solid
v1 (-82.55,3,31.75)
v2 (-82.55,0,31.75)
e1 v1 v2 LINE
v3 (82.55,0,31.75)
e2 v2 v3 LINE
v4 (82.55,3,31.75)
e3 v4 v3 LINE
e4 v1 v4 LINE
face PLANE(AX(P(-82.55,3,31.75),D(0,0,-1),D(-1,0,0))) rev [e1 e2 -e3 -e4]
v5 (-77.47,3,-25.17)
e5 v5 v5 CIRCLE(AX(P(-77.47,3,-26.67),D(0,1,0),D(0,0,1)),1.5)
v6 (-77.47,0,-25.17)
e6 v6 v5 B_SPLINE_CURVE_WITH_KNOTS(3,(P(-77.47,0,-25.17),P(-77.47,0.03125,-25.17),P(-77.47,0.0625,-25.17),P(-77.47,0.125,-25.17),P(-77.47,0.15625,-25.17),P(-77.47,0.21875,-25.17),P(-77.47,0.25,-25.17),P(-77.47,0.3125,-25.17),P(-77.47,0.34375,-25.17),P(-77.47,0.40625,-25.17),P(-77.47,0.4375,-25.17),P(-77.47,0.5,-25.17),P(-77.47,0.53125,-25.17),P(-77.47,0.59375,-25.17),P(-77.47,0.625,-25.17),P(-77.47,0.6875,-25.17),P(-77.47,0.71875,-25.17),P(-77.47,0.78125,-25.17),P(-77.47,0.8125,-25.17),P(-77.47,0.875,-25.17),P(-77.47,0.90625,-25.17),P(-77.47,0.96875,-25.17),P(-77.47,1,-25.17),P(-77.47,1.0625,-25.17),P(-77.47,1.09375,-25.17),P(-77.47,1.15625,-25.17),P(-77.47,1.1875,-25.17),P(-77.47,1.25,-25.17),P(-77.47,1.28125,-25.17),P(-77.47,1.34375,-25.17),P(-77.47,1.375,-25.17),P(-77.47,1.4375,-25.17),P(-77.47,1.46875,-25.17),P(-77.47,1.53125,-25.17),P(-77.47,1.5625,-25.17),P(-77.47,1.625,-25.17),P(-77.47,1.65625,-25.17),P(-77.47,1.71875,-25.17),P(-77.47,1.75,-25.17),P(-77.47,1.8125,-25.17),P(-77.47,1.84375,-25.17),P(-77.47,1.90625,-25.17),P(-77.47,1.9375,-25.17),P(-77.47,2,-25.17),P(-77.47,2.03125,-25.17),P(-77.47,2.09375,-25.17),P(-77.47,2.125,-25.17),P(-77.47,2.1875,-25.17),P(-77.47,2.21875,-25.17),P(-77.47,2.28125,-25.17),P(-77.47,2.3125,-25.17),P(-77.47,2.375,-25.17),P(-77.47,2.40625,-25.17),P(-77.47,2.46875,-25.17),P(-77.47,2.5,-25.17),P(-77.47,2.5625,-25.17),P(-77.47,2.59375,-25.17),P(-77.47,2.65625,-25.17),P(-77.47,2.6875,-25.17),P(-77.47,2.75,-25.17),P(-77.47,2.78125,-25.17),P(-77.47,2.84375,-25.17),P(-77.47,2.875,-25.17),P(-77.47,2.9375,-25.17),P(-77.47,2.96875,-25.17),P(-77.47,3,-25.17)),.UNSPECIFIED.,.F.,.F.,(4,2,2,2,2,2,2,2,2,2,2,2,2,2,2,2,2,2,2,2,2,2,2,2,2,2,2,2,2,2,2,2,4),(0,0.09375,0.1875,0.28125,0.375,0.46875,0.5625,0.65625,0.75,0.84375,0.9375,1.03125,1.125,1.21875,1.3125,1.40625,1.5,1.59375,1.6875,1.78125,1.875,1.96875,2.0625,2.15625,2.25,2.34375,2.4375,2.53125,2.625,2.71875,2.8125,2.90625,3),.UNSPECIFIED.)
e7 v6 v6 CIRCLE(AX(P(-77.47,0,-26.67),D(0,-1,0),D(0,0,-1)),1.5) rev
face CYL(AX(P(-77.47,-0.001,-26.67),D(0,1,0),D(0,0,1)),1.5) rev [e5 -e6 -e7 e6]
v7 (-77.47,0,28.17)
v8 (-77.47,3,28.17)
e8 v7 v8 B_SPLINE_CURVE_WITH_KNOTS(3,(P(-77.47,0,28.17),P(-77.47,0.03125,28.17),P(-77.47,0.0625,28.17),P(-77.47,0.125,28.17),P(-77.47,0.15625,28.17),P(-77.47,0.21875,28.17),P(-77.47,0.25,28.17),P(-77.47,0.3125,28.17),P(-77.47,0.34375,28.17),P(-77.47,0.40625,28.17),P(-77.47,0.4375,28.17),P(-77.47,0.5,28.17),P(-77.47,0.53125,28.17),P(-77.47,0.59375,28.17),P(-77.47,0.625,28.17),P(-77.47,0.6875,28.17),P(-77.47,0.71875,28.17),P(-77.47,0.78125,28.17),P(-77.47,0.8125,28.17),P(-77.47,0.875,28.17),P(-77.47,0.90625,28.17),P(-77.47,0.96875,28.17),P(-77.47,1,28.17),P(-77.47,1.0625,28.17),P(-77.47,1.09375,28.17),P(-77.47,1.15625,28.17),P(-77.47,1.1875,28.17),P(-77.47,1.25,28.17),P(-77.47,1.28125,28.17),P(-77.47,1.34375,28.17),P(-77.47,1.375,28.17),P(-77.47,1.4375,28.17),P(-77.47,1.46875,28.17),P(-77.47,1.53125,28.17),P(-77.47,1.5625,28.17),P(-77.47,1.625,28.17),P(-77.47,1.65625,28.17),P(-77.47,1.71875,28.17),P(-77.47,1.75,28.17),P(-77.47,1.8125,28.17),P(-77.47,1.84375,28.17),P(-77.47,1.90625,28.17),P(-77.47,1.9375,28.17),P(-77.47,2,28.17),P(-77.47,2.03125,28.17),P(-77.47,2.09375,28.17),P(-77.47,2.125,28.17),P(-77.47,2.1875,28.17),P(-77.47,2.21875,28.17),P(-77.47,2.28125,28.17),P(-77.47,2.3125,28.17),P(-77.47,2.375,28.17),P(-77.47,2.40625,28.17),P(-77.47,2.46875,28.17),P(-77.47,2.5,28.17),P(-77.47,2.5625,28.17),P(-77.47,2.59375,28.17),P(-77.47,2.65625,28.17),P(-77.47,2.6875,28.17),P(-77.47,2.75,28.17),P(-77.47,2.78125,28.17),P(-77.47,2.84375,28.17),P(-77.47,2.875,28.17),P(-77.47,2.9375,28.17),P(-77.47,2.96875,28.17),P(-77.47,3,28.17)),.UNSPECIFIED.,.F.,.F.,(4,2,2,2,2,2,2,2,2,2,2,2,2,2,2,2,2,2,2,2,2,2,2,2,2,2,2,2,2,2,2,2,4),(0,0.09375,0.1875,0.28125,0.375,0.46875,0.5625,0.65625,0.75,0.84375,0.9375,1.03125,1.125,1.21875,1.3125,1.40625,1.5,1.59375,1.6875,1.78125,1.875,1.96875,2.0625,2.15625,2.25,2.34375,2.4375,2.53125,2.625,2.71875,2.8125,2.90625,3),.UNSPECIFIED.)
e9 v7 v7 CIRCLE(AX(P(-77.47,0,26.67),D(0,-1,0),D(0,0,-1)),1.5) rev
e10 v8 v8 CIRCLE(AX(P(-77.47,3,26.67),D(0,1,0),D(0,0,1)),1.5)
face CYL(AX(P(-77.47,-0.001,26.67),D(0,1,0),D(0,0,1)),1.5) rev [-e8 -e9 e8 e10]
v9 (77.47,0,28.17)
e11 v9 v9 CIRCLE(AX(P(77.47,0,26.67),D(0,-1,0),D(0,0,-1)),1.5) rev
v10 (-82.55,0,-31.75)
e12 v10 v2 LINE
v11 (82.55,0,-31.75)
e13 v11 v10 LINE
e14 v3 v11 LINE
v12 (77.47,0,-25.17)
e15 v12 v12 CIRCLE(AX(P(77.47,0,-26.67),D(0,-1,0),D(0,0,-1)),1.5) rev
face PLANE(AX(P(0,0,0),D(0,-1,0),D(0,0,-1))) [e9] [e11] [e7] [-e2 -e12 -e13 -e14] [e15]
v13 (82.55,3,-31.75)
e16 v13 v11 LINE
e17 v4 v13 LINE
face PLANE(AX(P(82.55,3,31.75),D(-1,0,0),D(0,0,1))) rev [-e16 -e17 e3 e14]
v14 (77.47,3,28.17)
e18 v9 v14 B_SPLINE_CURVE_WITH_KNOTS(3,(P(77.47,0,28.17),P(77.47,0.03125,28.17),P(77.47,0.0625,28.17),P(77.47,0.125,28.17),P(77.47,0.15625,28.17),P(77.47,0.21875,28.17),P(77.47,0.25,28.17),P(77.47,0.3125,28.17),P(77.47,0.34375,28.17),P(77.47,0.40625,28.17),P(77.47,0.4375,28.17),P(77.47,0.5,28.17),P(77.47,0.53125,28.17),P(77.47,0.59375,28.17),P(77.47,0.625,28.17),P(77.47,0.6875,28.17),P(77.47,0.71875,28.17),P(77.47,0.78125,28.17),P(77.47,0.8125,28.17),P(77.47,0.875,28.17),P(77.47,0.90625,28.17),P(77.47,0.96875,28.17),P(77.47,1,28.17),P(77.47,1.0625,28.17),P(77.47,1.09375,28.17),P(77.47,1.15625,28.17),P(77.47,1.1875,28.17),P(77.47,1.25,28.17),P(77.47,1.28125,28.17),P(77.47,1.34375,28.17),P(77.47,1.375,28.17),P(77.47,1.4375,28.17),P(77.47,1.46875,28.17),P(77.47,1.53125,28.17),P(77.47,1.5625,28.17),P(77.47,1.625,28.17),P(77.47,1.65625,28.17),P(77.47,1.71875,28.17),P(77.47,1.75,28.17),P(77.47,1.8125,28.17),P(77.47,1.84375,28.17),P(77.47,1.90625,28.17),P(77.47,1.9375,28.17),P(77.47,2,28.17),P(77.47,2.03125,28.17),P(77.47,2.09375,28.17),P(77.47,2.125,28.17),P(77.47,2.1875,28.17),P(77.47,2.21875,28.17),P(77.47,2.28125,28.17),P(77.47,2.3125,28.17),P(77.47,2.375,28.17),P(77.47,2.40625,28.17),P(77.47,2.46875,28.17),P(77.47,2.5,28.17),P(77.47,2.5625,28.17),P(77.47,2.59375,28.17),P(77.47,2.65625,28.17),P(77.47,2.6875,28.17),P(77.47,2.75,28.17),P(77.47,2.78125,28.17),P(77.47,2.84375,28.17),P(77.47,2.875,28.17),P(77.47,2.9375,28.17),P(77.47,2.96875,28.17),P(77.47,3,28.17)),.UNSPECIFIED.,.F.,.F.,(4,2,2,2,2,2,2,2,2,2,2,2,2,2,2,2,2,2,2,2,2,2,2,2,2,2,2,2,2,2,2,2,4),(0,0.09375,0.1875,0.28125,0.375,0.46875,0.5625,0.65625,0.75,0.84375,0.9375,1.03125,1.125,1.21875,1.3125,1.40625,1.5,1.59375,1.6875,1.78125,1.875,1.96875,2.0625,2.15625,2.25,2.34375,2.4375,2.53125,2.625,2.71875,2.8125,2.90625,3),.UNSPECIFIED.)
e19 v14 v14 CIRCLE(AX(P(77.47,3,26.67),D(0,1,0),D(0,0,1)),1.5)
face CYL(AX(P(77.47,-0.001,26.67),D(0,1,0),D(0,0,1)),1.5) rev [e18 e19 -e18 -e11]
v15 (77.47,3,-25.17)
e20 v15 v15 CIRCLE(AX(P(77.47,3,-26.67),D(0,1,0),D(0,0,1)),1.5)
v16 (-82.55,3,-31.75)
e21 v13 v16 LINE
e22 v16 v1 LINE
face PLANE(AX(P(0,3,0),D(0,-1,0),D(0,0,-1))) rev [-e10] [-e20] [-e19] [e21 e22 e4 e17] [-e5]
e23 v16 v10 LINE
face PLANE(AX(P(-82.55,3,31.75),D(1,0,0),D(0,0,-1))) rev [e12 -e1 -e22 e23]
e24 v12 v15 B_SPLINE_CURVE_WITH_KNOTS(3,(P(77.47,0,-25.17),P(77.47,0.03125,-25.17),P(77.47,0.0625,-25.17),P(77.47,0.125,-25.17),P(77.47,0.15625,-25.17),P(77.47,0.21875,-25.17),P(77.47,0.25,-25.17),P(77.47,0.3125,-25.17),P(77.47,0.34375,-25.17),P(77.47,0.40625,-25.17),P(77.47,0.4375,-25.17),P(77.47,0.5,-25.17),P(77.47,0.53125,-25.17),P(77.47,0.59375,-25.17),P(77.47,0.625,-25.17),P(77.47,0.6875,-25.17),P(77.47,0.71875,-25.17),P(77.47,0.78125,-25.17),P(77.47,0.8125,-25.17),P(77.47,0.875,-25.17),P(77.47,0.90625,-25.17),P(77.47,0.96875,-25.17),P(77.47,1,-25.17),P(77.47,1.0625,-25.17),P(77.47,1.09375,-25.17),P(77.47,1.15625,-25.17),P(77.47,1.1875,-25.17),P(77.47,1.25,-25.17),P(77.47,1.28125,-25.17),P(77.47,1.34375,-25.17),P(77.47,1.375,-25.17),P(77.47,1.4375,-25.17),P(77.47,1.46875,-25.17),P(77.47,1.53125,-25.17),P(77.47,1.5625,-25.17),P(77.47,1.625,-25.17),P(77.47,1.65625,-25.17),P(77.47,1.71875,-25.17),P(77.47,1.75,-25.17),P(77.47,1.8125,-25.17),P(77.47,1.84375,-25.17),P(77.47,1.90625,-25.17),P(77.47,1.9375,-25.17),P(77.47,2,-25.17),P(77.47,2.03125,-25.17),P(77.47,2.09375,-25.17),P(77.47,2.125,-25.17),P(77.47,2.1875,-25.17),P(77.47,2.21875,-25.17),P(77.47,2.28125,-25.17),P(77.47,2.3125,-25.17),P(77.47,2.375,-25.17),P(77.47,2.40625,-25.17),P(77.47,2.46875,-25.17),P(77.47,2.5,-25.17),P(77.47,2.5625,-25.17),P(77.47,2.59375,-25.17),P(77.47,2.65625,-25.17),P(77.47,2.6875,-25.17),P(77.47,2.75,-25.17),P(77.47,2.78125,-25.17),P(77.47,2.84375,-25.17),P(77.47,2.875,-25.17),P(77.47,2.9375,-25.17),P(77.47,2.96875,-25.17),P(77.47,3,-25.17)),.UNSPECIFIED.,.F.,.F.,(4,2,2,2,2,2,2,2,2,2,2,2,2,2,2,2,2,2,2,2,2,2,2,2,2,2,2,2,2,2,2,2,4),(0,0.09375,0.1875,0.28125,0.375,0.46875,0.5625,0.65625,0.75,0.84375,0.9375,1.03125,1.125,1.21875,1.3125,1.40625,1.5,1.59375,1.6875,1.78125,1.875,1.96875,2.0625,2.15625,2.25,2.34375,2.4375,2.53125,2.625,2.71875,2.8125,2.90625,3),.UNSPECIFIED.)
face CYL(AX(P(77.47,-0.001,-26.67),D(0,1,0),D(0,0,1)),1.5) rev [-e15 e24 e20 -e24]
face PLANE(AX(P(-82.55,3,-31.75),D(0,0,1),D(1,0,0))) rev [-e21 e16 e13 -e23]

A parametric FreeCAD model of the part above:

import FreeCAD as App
import Part
import Sketcher
Q = App.Units.Quantity

doc = App.newDocument("Part")
body = doc.addObject("PartDesign::Body", "Body")

# Sketch on XZ plane
sketch1 = body.newObject("Sketcher::SketchObject", "Sketch")
sketch1.AttachmentSupport = (doc.getObject("XZ_Plane"), [""])
sketch1.MapMode = "FlatFace"
sketch1.addGeometry([
    Part.LineSegment(App.Vector(-83, -32, 0), App.Vector(-83, 32, 0)),
    Part.LineSegment(App.Vector(-83, 32, 0), App.Vector(83, 32, 0)),
    Part.LineSegment(App.Vector(83, 32, 0), App.Vector(83, -32, 0)),
    Part.LineSegment(App.Vector(83, -32, 0), App.Vector(-83, -32, 0)),
], False)
sketch1.addConstraint([
    Sketcher.Constraint("Coincident", 0, 2, 1, 1),
    Sketcher.Constraint("Coincident", 1, 2, 2, 1),
    Sketcher.Constraint("Coincident", 2, 2, 3, 1),
    Sketcher.Constraint("Coincident", 3, 2, 0, 1),
    Sketcher.Constraint("Vertical", 0),
    Sketcher.Constraint("Horizontal", 1),
    Sketcher.Constraint("Vertical", 2),
    Sketcher.Constraint("Horizontal", 3),
    Sketcher.Constraint("Symmetric", 0, 2, 2, 2, -1, 1),
    Sketcher.Constraint("DistanceX", 1, 1, 1, 2, Q("6.5 in")),
    Sketcher.Constraint("DistanceY", 0, 1, 0, 2, Q("2.5 in")),
])
pad1 = body.newObject("PartDesign::Pad", "Pad")
pad1.Profile = sketch1
pad1.Length = 3
pad1.Reversed = True

# Sketch on XZ plane
sketch2 = body.newObject("Sketcher::SketchObject", "Sketch001")
sketch2.AttachmentSupport = (doc.getObject("XZ_Plane"), [""])
sketch2.MapMode = "FlatFace"
sketch2.AttachmentOffset = App.Placement(App.Vector(0, 0, -3), App.Rotation())
sketch2.addGeometry(Part.Circle(App.Vector(-77.5, -26.7, 0), App.Vector(0, 0, 1), 1.5), False)
sketch2.addConstraint([
    Sketcher.Constraint("Diameter", 0, Q("3 mm")),
    Sketcher.Constraint("DistanceX", 0, 3, -1, 1, Q("3.05 in")),
    Sketcher.Constraint("DistanceY", 0, 3, -1, 1, Q("1.05 in")),
])
pocket1 = body.newObject("PartDesign::Pocket", "Pocket")
pocket1.Profile = sketch2
pocket1.Type = "UpToFirst"
pocket1.Reversed = True

# Sketch on XZ plane
sketch3 = body.newObject("Sketcher::SketchObject", "Sketch002")
sketch3.AttachmentSupport = (doc.getObject("XZ_Plane"), [""])
sketch3.MapMode = "FlatFace"
sketch3.AttachmentOffset = App.Placement(App.Vector(0, 0, -3), App.Rotation())
sketch3.addGeometry(Part.Circle(App.Vector(-77.5, 26.7, 0), App.Vector(0, 0, 1), 1.5), False)
sketch3.addConstraint([
    Sketcher.Constraint("Diameter", 0, Q("3 mm")),
    Sketcher.Constraint("DistanceX", 0, 3, -1, 1, Q("3.05 in")),
    Sketcher.Constraint("DistanceY", -1, 1, 0, 3, Q("1.05 in")),
])
pocket2 = body.newObject("PartDesign::Pocket", "Pocket001")
pocket2.Profile = sketch3
pocket2.Type = "UpToFirst"
pocket2.Reversed = True

# Sketch on XZ plane
sketch4 = body.newObject("Sketcher::SketchObject", "Sketch003")
sketch4.AttachmentSupport = (doc.getObject("XZ_Plane"), [""])
sketch4.MapMode = "FlatFace"
sketch4.AttachmentOffset = App.Placement(App.Vector(0, 0, -3), App.Rotation())
sketch4.addGeometry(Part.Circle(App.Vector(77.5, -26.7, 0), App.Vector(0, 0, 1), 1.5), False)
sketch4.addConstraint([
    Sketcher.Constraint("Diameter", 0, Q("3 mm")),
    Sketcher.Constraint("DistanceX", -1, 1, 0, 3, Q("3.05 in")),
    Sketcher.Constraint("DistanceY", 0, 3, -1, 1, Q("1.05 in")),
])
pocket3 = body.newObject("PartDesign::Pocket", "Pocket002")
pocket3.Profile = sketch4
pocket3.Type = "UpToFirst"
pocket3.Reversed = True

# Sketch on XZ plane
sketch5 = body.newObject("Sketcher::SketchObject", "Sketch004")
sketch5.AttachmentSupport = (doc.getObject("XZ_Plane"), [""])
sketch5.MapMode = "FlatFace"
sketch5.AttachmentOffset = App.Placement(App.Vector(0, 0, -3), App.Rotation())
sketch5.addGeometry(Part.Circle(App.Vector(77.5, 26.7, 0), App.Vector(0, 0, 1), 1.5), False)
sketch5.addConstraint([
    Sketcher.Constraint("Diameter", 0, Q("3 mm")),
    Sketcher.Constraint("DistanceX", -1, 1, 0, 3, Q("3.05 in")),
    Sketcher.Constraint("DistanceY", -1, 1, 0, 3, Q("1.05 in")),
])
pocket4 = body.newObject("PartDesign::Pocket", "Pocket003")
pocket4.Profile = sketch5
pocket4.Type = "UpToFirst"
pocket4.Reversed = True

doc.recompute()
